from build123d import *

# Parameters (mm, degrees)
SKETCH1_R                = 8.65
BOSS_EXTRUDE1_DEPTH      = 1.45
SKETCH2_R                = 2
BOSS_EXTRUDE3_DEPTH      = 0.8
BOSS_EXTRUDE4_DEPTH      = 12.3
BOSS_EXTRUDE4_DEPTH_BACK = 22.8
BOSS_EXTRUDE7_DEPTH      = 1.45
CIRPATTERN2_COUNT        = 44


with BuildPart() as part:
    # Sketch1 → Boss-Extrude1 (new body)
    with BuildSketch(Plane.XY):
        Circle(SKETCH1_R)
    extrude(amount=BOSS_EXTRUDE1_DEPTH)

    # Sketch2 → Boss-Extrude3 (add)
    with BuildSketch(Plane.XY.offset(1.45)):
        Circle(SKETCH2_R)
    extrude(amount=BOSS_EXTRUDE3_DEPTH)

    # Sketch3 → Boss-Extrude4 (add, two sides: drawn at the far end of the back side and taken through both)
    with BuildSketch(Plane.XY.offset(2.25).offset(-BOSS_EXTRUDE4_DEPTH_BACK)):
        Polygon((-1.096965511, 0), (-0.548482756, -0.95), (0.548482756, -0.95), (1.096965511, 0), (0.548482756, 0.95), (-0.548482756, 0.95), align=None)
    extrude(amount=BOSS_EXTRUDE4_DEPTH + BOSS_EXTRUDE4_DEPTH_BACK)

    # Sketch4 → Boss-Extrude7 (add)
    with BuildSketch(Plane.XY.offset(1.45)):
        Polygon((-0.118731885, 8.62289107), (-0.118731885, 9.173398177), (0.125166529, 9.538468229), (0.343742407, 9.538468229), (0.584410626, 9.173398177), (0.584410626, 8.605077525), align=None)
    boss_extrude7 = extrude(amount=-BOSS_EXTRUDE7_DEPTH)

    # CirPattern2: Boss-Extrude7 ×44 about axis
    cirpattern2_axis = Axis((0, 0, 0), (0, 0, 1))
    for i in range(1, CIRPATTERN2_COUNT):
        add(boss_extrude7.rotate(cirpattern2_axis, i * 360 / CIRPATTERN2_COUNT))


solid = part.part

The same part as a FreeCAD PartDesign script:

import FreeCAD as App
import Part
import Sketcher
Q = App.Units.Quantity


def add_polygon(sketch, points):
    """Adds a closed chain of lines whose ends are joined by coincident constraints."""
    first, n = sketch.GeometryCount, len(points)
    for a, b in zip(points, points[1:] + points[:1]):
        sketch.addGeometry(Part.LineSegment(App.Vector(*a, 0), App.Vector(*b, 0)), False)
    for i in range(n):
        sketch.addConstraint(Sketcher.Constraint("Coincident", first + i, 2, first + (i + 1) % n, 1))

doc = App.newDocument("Part")
params = doc.addObject("Spreadsheet::Sheet", "Params")
for row, (alias, value) in enumerate([
    ("sketch1_diameter", "17.3 mm"),
    ("pad1_length", "1.45 mm"),
    ("sketch2_diameter", "4 mm"),
    ("pad2_length", "0.8 mm"),
    ("pad3_length", "12.3 mm"),
    ("pad3_length2", "22.8 mm"),
    ("pad4_length", "1.45 mm"),
], start=1):
    params.set(f"A{row}", alias)
    params.set(f"B{row}", "=" + value)
    params.setAlias(f"B{row}", alias)

body = doc.addObject("PartDesign::Body", "Body")

sketch1 = body.newObject("Sketcher::SketchObject", "Sketch")
sketch1.AttachmentSupport = (doc.getObject("XY_Plane"), [""])
sketch1.MapMode = "FlatFace"
sketch1.addGeometry(Part.Circle(App.Vector(0, 0, 0), App.Vector(0, 0, 1), 9), False)
sketch1.addConstraint([
    Sketcher.Constraint("Coincident", 0, 3, -1, 1),
    Sketcher.Constraint("Diameter", 0, Q("17.3 mm")),
])
sketch1.setExpression("Constraints[1]", "Params.sketch1_diameter")
pad1 = body.newObject("PartDesign::Pad", "Pad")
pad1.Profile = sketch1
pad1.setExpression("Length", "Params.pad1_length")

sketch2 = body.newObject("Sketcher::SketchObject", "Sketch001")
sketch2.AttachmentSupport = (doc.getObject("XY_Plane"), [""])
sketch2.MapMode = "FlatFace"
sketch2.AttachmentOffset = App.Placement(App.Vector(0, 0, 1.45), App.Rotation())
sketch2.addGeometry(Part.Circle(App.Vector(0, 0, 0), App.Vector(0, 0, 1), 2), False)
sketch2.addConstraint([
    Sketcher.Constraint("Coincident", 0, 3, -1, 1),
    Sketcher.Constraint("Diameter", 0, Q("4 mm")),
])
sketch2.setExpression("Constraints[1]", "Params.sketch2_diameter")
pad2 = body.newObject("PartDesign::Pad", "Pad001")
pad2.Profile = sketch2
pad2.setExpression("Length", "Params.pad2_length")

sketch3 = body.newObject("Sketcher::SketchObject", "Sketch002")
sketch3.AttachmentSupport = (doc.getObject("XY_Plane"), [""])
sketch3.MapMode = "FlatFace"
sketch3.AttachmentOffset = App.Placement(App.Vector(0, 0, 2.25), App.Rotation())
add_polygon(sketch3, [(-1.1, 0), (-0.5, -0.9), (0.5, -0.9), (1.1, 0), (0.5, 0.9), (-0.5, 0.9)])
sketch3.addConstraint([
    Sketcher.Constraint("Horizontal", 1),
    Sketcher.Constraint("Horizontal", 4),
    Sketcher.Constraint("Symmetric", 0, 2, 3, 2, -1, 1),
    Sketcher.Constraint("Symmetric", 2, 2, 5, 2, -1, 1),
    Sketcher.Constraint("PointOnObject", 2, 2, -1),
    Sketcher.Constraint("Parallel", 2, 5),
    Sketcher.Constraint("Vertical", 1, 2, 3, 2),
    Sketcher.Constraint("Angle", 0, Q("-60 deg")),
    Sketcher.Constraint("DistanceY", 1, 2, 3, 2, Q("1.9 mm")),
    Sketcher.Constraint("DistanceX", 1, 1, 1, 2, Q("1.096966 mm")),
])
pad3 = body.newObject("PartDesign::Pad", "Pad002")
pad3.Profile = sketch3
pad3.Type = "TwoLengths"
pad3.setExpression("Length", "Params.pad3_length")
pad3.setExpression("Length2", "Params.pad3_length2")

sketch4 = body.newObject("Sketcher::SketchObject", "Sketch003")
sketch4.AttachmentSupport = (doc.getObject("XY_Plane"), [""])
sketch4.MapMode = "FlatFace"
sketch4.AttachmentOffset = App.Placement(App.Vector(0, 0, 1.45), App.Rotation())
add_polygon(sketch4, [(-0.12, 9.17), (-0.12, 8.62), (0.58, 8.61), (0.58, 9.17), (0.34, 9.54), (0.13, 9.54)])
sketch4.addConstraint([
    Sketcher.Constraint("Vertical", 0),
    Sketcher.Constraint("Vertical", 2),
    Sketcher.Constraint("Horizontal", 4),
    Sketcher.Constraint("Horizontal", 2, 2, 5, 2),
    Sketcher.Constraint("DistanceY", 2, 1, 2, 2, Q("0.568321 mm")),
    Sketcher.Constraint("DistanceY", -1, 1, 2, 2, Q("9.173398 mm")),
    Sketcher.Constraint("DistanceX", 0, 2, 4, 2, Q("0.243898 mm")),
    Sketcher.Constraint("Distance", 1, Q("0.703368 mm")),
    Sketcher.Constraint("Distance", 3, Q("0.437261 mm")),
    Sketcher.Constraint("DistanceX", 4, 2, 4, 1, Q("0.218576 mm")),
    Sketcher.Constraint("DistanceY", 0, 2, 0, 1, Q("0.550507 mm")),
    Sketcher.Constraint("DistanceX", 0, 2, -1, 1, Q("0.118732 mm")),
])
pad4 = body.newObject("PartDesign::Pad", "Pad003")
pad4.Profile = sketch4
pad4.setExpression("Length", "Params.pad4_length")
pad4.Reversed = True
doc.recompute()

polarpattern = body.newObject("PartDesign::PolarPattern", "PolarPattern")
polarpattern.Originals = [pad4]
polarpattern.Axis = (doc.getObject("Z_Axis"), [""])
polarpattern.Angle = 360
polarpattern.Occurrences = 44
body.Tip = polarpattern

doc.recompute()
